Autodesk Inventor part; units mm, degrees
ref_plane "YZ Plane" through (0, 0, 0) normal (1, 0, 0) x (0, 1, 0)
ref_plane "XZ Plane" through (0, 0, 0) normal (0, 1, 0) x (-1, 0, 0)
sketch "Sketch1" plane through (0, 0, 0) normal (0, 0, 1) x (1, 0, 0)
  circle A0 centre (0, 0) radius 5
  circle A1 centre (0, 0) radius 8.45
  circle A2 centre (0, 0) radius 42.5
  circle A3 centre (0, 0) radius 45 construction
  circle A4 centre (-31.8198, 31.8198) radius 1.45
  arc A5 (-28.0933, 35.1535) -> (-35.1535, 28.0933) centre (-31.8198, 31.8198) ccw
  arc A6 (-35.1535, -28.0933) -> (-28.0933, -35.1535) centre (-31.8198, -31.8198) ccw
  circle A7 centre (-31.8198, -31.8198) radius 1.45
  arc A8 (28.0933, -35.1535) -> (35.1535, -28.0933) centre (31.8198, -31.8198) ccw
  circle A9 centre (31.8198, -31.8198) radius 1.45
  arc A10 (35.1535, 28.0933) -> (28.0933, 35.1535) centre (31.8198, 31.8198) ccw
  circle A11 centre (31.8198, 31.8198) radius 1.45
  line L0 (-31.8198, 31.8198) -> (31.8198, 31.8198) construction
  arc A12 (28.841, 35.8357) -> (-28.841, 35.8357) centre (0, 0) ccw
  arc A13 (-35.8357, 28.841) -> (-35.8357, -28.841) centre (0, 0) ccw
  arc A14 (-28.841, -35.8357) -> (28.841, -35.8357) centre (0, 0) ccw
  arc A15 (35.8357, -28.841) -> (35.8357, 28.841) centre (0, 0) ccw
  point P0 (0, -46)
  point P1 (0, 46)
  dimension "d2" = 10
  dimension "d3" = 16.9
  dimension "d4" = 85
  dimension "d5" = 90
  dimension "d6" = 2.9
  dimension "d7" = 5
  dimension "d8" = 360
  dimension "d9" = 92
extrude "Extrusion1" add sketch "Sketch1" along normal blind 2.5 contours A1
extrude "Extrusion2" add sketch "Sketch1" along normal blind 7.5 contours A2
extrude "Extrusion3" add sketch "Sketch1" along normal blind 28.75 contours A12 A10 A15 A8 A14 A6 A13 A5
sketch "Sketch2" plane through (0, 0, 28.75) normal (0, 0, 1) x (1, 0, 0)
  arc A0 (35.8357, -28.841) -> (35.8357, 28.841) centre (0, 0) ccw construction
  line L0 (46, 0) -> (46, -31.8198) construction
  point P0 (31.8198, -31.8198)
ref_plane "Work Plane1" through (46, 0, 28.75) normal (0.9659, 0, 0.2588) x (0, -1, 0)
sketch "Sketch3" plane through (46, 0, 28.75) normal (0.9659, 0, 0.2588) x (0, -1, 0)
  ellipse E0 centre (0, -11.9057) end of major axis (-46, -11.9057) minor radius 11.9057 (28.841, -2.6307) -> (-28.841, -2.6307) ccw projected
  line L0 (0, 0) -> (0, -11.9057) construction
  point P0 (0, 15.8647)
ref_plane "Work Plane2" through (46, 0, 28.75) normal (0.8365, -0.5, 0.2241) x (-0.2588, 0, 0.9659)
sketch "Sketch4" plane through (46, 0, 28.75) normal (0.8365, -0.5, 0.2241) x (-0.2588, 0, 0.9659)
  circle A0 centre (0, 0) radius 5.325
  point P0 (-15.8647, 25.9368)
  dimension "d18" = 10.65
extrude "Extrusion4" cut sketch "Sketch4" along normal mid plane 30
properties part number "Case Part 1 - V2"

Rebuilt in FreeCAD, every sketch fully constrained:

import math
import FreeCAD as App
import Part
import Sketcher

V = App.Vector
Q = App.Units.Quantity

doc = App.newDocument("Part")
body = doc.addObject("PartDesign::Body", "Body")

# Sketch on XY plane
sketch1 = body.newObject("Sketcher::SketchObject", "Sketch")
sketch1.AttachmentSupport = (doc.getObject("XY_Plane"), [""])
sketch1.MapMode = "FlatFace"
sketch1.addGeometry(Part.Circle(V(0, 0, 0), V(0, 0, 1), 8), False)
sketch1.addGeometry(Part.Circle(V(0, 0, 0), V(0, 0, 1), 5), False)
sketch1.addConstraint(Sketcher.Constraint("Coincident", 0, 3, -1, 1))
sketch1.addConstraint(Sketcher.Constraint("Coincident", 1, 3, -1, 1))
sketch1.addConstraint(Sketcher.Constraint("Diameter", 1, Q("10 mm")))
sketch1.addConstraint(Sketcher.Constraint("Diameter", 0, Q("16.9 mm")))
pad1 = body.newObject("PartDesign::Pad", "Pad")
pad1.Profile = sketch1
pad1.Length = 2.5

# Sketch on XY plane
sketch2 = body.newObject("Sketcher::SketchObject", "Sketch001")
sketch2.AttachmentSupport = (doc.getObject("XY_Plane"), [""])
sketch2.MapMode = "FlatFace"
sketch2.addGeometry(Part.Circle(V(0, 0, 0), V(0, 0, 1), 42), False)
sketch2.addGeometry(Part.Circle(V(0, 0, 0), V(0, 0, 1), 8), False)
sketch2.addConstraint(Sketcher.Constraint("Coincident", 0, 3, -1, 1))
sketch2.addConstraint(Sketcher.Constraint("Coincident", 1, 3, -1, 1))
sketch2.addConstraint(Sketcher.Constraint("Diameter", 0, Q("85 mm")))
sketch2.addConstraint(Sketcher.Constraint("Diameter", 1, Q("16.9 mm")))
pad2 = body.newObject("PartDesign::Pad", "Pad001")
pad2.Profile = sketch2
pad2.Length = 7.5

# Sketch on XY plane
sketch3 = body.newObject("Sketcher::SketchObject", "Sketch002")
sketch3.AttachmentSupport = (doc.getObject("XY_Plane"), [""])
sketch3.MapMode = "FlatFace"
sketch3.addGeometry(Part.ArcOfCircle(Part.Circle(V(0, 0, 0), V(0, 0, 1), 46), math.radians(51), math.radians(129)), False)
sketch3.addGeometry(Part.ArcOfCircle(Part.Circle(V(-31.8, 31.8, 0), V(0, 0, 1), 5), math.radians(53), math.radians(217)), False)
sketch3.addGeometry(Part.ArcOfCircle(Part.Circle(V(0, 0, 0), V(0, 0, 1), 46), math.radians(141), math.radians(219)), False)
sketch3.addGeometry(Part.ArcOfCircle(Part.Circle(V(-31.8, -31.8, 0), V(0, 0, 1), 5), math.radians(143), math.radians(307)), False)
sketch3.addGeometry(Part.ArcOfCircle(Part.Circle(V(0, 0, 0), V(0, 0, 1), 46), math.radians(-129), math.radians(-51)), False)
sketch3.addGeometry(Part.ArcOfCircle(Part.Circle(V(31.8, -31.8, 0), V(0, 0, 1), 5), math.radians(-127), math.radians(37)), False)
sketch3.addGeometry(Part.ArcOfCircle(Part.Circle(V(0, 0, 0), V(0, 0, 1), 46), math.radians(-39), math.radians(39)), False)
sketch3.addGeometry(Part.ArcOfCircle(Part.Circle(V(31.8, 31.8, 0), V(0, 0, 1), 5), math.radians(-37), math.radians(127)), False)
sketch3.addGeometry(Part.Circle(V(-31.8, -31.8, 0), V(0, 0, 1), 1.4), False)
sketch3.addGeometry(Part.Circle(V(31.8, -31.8, 0), V(0, 0, 1), 1.4), False)
sketch3.addGeometry(Part.Circle(V(-31.8, 31.8, 0), V(0, 0, 1), 1.4), False)
sketch3.addGeometry(Part.Circle(V(0, 0, 0), V(0, 0, 1), 42.5), False)
sketch3.addGeometry(Part.Circle(V(31.8, 31.8, 0), V(0, 0, 1), 1.4), False)
sketch3.addConstraint(Sketcher.Constraint("Coincident", 0, 2, 1, 1))
sketch3.addConstraint(Sketcher.Constraint("Coincident", 1, 2, 2, 1))
sketch3.addConstraint(Sketcher.Constraint("Coincident", 2, 2, 3, 1))
sketch3.addConstraint(Sketcher.Constraint("Coincident", 3, 2, 4, 1))
sketch3.addConstraint(Sketcher.Constraint("Coincident", 4, 2, 5, 1))
sketch3.addConstraint(Sketcher.Constraint("Coincident", 5, 2, 6, 1))
sketch3.addConstraint(Sketcher.Constraint("Coincident", 6, 2, 7, 1))
sketch3.addConstraint(Sketcher.Constraint("Coincident", 7, 2, 0, 1))
sketch3.addConstraint(Sketcher.Constraint("Coincident", 0, 3, -1, 1))
sketch3.addConstraint(Sketcher.Constraint("Coincident", 2, 3, -1, 1))
sketch3.addConstraint(Sketcher.Constraint("Coincident", 4, 3, -1, 1))
sketch3.addConstraint(Sketcher.Constraint("Coincident", 6, 3, -1, 1))
sketch3.addConstraint(Sketcher.Constraint("Coincident", 11, 3, -1, 1))
sketch3.addConstraint(Sketcher.Constraint("Coincident", 8, 3, 3, 3))
sketch3.addConstraint(Sketcher.Constraint("Coincident", 9, 3, 5, 3))
sketch3.addConstraint(Sketcher.Constraint("Coincident", 10, 3, 1, 3))
sketch3.addConstraint(Sketcher.Constraint("Coincident", 12, 3, 7, 3))
sketch3.addConstraint(Sketcher.Constraint("Equal", 0, 2))
sketch3.addConstraint(Sketcher.Constraint("Equal", 1, 3))
sketch3.addConstraint(Sketcher.Constraint("Equal", 2, 4))
sketch3.addConstraint(Sketcher.Constraint("Equal", 3, 5))
sketch3.addConstraint(Sketcher.Constraint("Equal", 4, 6))
sketch3.addConstraint(Sketcher.Constraint("Equal", 5, 7))
sketch3.addConstraint(Sketcher.Constraint("Equal", 8, 9))
sketch3.addConstraint(Sketcher.Constraint("Equal", 9, 10))
sketch3.addConstraint(Sketcher.Constraint("Equal", 10, 12))
sketch3.addConstraint(Sketcher.Constraint("Symmetric", 1, 3, 5, 3, -1, 1))
sketch3.addConstraint(Sketcher.Constraint("Symmetric", 3, 3, 7, 3, -1, 1))
sketch3.addConstraint(Sketcher.Constraint("Symmetric", 3, 3, 5, 3, -2))
sketch3.addConstraint(Sketcher.Constraint("Diameter", 11, Q("85 mm")))
sketch3.addConstraint(Sketcher.Constraint("Radius", 0, Q("46 mm")))
sketch3.addConstraint(Sketcher.Constraint("Radius", 1, Q("5 mm")))
sketch3.addConstraint(Sketcher.Constraint("Diameter", 8, Q("2.9 mm")))
sketch3.addConstraint(Sketcher.Constraint("DistanceX", 0, 2, -1, 1, Q("28.841 mm")))
sketch3.addConstraint(Sketcher.Constraint("DistanceY", -1, 1, 1, 2, Q("28.841 mm")))
pad3 = body.newObject("PartDesign::Pad", "Pad002")
pad3.Profile = sketch3
pad3.Length = 28.75

# Sketch on an angled plane
sketch4 = body.newObject("Sketcher::SketchObject", "Sketch003")
sketch4.Placement = App.Placement(V(46, 0, 28.75), App.Rotation(V(-0.258787128, -0.000019078, 0.965934378), V(-0.482974249, -0.866018628, -0.12941256), V(0.836519633, -0.500011735, 0.22410526), "ZXY"))
sketch4.addGeometry(Part.Circle(V(0, 0, 0), V(0, 0, 1), 5), False)
sketch4.addConstraint(Sketcher.Constraint("Coincident", 0, 3, -1, 1))
sketch4.addConstraint(Sketcher.Constraint("Diameter", 0, Q("10.65 mm")))
pocket1 = body.newObject("PartDesign::Pocket", "Pocket")
pocket1.Profile = sketch4
pocket1.Length = 30
pocket1.Midplane = True

doc.recompute()
